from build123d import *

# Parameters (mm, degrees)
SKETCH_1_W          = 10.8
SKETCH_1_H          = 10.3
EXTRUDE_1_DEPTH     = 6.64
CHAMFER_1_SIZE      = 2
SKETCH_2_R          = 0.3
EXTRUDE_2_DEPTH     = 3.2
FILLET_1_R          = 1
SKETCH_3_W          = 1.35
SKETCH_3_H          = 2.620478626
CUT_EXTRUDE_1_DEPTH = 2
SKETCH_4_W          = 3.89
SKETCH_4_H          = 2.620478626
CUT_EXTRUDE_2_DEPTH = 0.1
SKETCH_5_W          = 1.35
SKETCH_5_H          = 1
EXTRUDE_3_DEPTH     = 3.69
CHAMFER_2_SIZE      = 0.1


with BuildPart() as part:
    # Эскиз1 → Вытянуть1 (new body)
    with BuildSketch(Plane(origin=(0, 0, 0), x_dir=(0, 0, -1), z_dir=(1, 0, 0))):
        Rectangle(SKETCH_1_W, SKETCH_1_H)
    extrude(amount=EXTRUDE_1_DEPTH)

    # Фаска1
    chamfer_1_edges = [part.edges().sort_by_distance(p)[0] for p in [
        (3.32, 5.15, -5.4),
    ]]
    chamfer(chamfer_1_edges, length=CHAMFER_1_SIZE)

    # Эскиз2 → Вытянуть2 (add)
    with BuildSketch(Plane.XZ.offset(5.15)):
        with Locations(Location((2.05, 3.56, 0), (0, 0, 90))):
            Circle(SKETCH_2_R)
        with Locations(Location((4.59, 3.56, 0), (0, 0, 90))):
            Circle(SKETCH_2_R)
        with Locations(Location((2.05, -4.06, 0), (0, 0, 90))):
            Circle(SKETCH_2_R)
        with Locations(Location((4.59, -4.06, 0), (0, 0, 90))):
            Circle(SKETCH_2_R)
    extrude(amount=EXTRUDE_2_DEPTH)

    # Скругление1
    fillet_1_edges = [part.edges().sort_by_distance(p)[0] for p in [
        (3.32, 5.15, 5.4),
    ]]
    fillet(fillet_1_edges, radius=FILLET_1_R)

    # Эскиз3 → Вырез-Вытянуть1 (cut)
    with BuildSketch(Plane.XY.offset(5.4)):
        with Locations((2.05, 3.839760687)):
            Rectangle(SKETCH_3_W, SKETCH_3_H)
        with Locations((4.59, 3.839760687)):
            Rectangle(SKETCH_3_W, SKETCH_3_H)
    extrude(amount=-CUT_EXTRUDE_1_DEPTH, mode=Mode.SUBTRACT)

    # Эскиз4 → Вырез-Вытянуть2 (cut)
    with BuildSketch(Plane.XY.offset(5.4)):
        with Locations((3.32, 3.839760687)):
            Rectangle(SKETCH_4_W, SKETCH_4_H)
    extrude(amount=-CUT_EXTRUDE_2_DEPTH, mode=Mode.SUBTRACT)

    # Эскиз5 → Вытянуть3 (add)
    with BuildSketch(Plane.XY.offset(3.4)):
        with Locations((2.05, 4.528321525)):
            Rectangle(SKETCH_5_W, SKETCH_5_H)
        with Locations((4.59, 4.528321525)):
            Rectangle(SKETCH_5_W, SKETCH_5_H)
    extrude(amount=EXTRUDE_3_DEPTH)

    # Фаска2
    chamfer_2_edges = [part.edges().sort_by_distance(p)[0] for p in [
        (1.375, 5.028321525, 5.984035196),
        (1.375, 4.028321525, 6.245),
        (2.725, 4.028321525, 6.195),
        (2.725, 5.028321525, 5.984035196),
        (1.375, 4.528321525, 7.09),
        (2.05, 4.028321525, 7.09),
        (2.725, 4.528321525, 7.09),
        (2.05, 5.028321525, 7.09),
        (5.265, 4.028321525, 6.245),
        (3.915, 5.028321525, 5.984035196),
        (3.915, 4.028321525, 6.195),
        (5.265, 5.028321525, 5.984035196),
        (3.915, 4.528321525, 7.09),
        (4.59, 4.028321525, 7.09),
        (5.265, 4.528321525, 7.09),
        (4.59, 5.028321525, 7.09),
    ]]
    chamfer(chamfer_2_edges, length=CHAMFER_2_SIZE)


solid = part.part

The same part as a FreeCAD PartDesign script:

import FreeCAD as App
import Part
import Sketcher


def edges_at(feature, points):
    """Names of the edges that pass closest to the given points."""
    edges = feature.Shape.Edges
    near = lambda p: min(range(len(edges)), key=lambda i: edges[i].distToShape(Part.Vertex(*p))[0])
    return sorted({f"Edge{near(p) + 1}" for p in points})


def add_polygon(sketch, points):
    """Adds a closed chain of lines whose ends are joined by coincident constraints."""
    first, n = sketch.GeometryCount, len(points)
    for a, b in zip(points, points[1:] + points[:1]):
        sketch.addGeometry(Part.LineSegment(App.Vector(*a, 0), App.Vector(*b, 0)), False)
    for i in range(n):
        sketch.addConstraint(Sketcher.Constraint("Coincident", first + i, 2, first + (i + 1) % n, 1))

doc = App.newDocument("Part")
body = doc.addObject("PartDesign::Body", "Body")

# Sketch on YZ plane
sketch1 = body.newObject("Sketcher::SketchObject", "Sketch")
sketch1.AttachmentSupport = (doc.getObject("YZ_Plane"), [""])
sketch1.MapMode = "FlatFace"
add_polygon(sketch1, [(5, 5), (-5, 5), (-5, -5), (5, -5)])  # lines 0-3
sketch1.addConstraint([
    Sketcher.Constraint("Horizontal", 0),
    Sketcher.Constraint("Vertical", 1),
    Sketcher.Constraint("Horizontal", 2),
    Sketcher.Constraint("Vertical", 3),
    Sketcher.Constraint("Symmetric", 0, 2, 2, 2, -1, 1),
    Sketcher.Constraint("DistanceX", 0, 2, 0, 1, 10.3),
    Sketcher.Constraint("DistanceY", 1, 2, 1, 1, 10.8),
])
pad1 = body.newObject("PartDesign::Pad", "Pad")
pad1.Profile = sketch1
pad1.Length = 6.64
doc.recompute()

chamfer = body.newObject("PartDesign::Chamfer", "Chamfer")
chamfer.Base = (pad1, edges_at(pad1, [(3.32, 5.15, -5.4)]))
chamfer.Size = 2

# Sketch on XZ plane
sketch2 = body.newObject("Sketcher::SketchObject", "Sketch001")
sketch2.AttachmentSupport = (doc.getObject("XZ_Plane"), [""])
sketch2.MapMode = "FlatFace"
sketch2.AttachmentOffset = App.Placement(App.Vector(0, 0, 5.15), App.Rotation())
sketch2.addGeometry([
    Part.Circle(App.Vector(2.05, 3.56, 0), App.Vector(0, 0, 1), 0.3),
    Part.Circle(App.Vector(4.59, 3.56, 0), App.Vector(0, 0, 1), 0.3),
    Part.Circle(App.Vector(2.05, -4.06, 0), App.Vector(0, 0, 1), 0.3),
    Part.Circle(App.Vector(4.59, -4.06, 0), App.Vector(0, 0, 1), 0.3),
], False)
sketch2.addConstraint([
    Sketcher.Constraint("Equal", 0, 1),
    Sketcher.Constraint("Equal", 1, 2),
    Sketcher.Constraint("Equal", 2, 3),
    Sketcher.Constraint("Horizontal", 0, 3, 1, 3),
    Sketcher.Constraint("Horizontal", 2, 3, 3, 3),
    Sketcher.Constraint("Vertical", 0, 3, 2, 3),
    Sketcher.Constraint("Vertical", 1, 3, 3, 3),
    Sketcher.Constraint("Diameter", 0, 0.6),
    Sketcher.Constraint("DistanceX", -1, 1, 0, 3, 2.05),
    Sketcher.Constraint("DistanceY", -1, 1, 0, 3, 3.56),
    Sketcher.Constraint("DistanceX", -1, 1, 1, 3, 4.59),
    Sketcher.Constraint("DistanceY", 2, 3, -1, 1, 4.06),
])
pad2 = body.newObject("PartDesign::Pad", "Pad001")
pad2.Profile = sketch2
pad2.Length = 3.2
doc.recompute()

fillet = body.newObject("PartDesign::Fillet", "Fillet")
fillet.Base = (pad2, edges_at(pad2, [(3.32, 5.15, 5.4)]))
fillet.Radius = 1

# Sketch on XY plane
sketch3 = body.newObject("Sketcher::SketchObject", "Sketch002")
sketch3.AttachmentSupport = (doc.getObject("XY_Plane"), [""])
sketch3.MapMode = "FlatFace"
sketch3.AttachmentOffset = App.Placement(App.Vector(0, 0, 5.4), App.Rotation())
add_polygon(sketch3, [(1.4, 5.2), (1.4, 2.5), (2.7, 2.5), (2.7, 5.2)])  # lines 0-3
add_polygon(sketch3, [(3.9, 5.2), (3.9, 2.5), (5.3, 2.5), (5.3, 5.2)])  # lines 4-7
sketch3.addConstraint([
    Sketcher.Constraint("Vertical", 0),
    Sketcher.Constraint("Horizontal", 1),
    Sketcher.Constraint("Vertical", 2),
    Sketcher.Constraint("Horizontal", 3),
    Sketcher.Constraint("Vertical", 4),
    Sketcher.Constraint("Horizontal", 5),
    Sketcher.Constraint("Vertical", 6),
    Sketcher.Constraint("Horizontal", 7),
    Sketcher.Constraint("Horizontal", 1, 2, 4, 2),
    Sketcher.Constraint("Horizontal", 3, 2, 6, 2),
    Sketcher.Constraint("Equal", 3, 5),
    Sketcher.Constraint("DistanceX", 1, 1, 1, 2, 1.35),
    Sketcher.Constraint("DistanceY", -1, 1, 2, 2, 5.15),
    Sketcher.Constraint("DistanceX", 1, 2, 4, 2, 1.19),
    Sketcher.Constraint("DistanceX", -1, 1, 0, 2, 1.375),
    Sketcher.Constraint("DistanceY", 0, 2, 0, 1, 2.620479),
])
pocket1 = body.newObject("PartDesign::Pocket", "Pocket")
pocket1.Profile = sketch3
pocket1.Length = 2

# Sketch on XY plane
sketch4 = body.newObject("Sketcher::SketchObject", "Sketch003")
sketch4.AttachmentSupport = (doc.getObject("XY_Plane"), [""])
sketch4.MapMode = "FlatFace"
sketch4.AttachmentOffset = App.Placement(App.Vector(0, 0, 5.4), App.Rotation())
add_polygon(sketch4, [(1.4, 5.2), (1.4, 2.5), (5.3, 2.5), (5.3, 5.2)])  # lines 0-3
sketch4.addConstraint([
    Sketcher.Constraint("Vertical", 0),
    Sketcher.Constraint("Horizontal", 1),
    Sketcher.Constraint("Vertical", 2),
    Sketcher.Constraint("Horizontal", 3),
    Sketcher.Constraint("DistanceX", 1, 1, 1, 2, 3.89),
    Sketcher.Constraint("DistanceY", -1, 1, 2, 2, 5.15),
    Sketcher.Constraint("DistanceX", -1, 1, 0, 2, 1.375),
    Sketcher.Constraint("DistanceY", 0, 2, 0, 1, 2.620479),
])
pocket2 = body.newObject("PartDesign::Pocket", "Pocket001")
pocket2.Profile = sketch4
pocket2.Length = 0.1

# Sketch on XY plane
sketch5 = body.newObject("Sketcher::SketchObject", "Sketch004")
sketch5.AttachmentSupport = (doc.getObject("XY_Plane"), [""])
sketch5.MapMode = "FlatFace"
sketch5.AttachmentOffset = App.Placement(App.Vector(0, 0, 3.4), App.Rotation())
add_polygon(sketch5, [(1.4, 5), (1.4, 4), (2.7, 4), (2.7, 5)])  # lines 0-3
add_polygon(sketch5, [(3.9, 5), (3.9, 4), (5.3, 4), (5.3, 5)])  # lines 4-7
sketch5.addConstraint([
    Sketcher.Constraint("Vertical", 0),
    Sketcher.Constraint("Horizontal", 1),
    Sketcher.Constraint("Vertical", 2),
    Sketcher.Constraint("Horizontal", 3),
    Sketcher.Constraint("Vertical", 4),
    Sketcher.Constraint("Horizontal", 5),
    Sketcher.Constraint("Vertical", 6),
    Sketcher.Constraint("Horizontal", 7),
    Sketcher.Constraint("Horizontal", 1, 2, 4, 2),
    Sketcher.Constraint("Horizontal", 3, 2, 6, 2),
    Sketcher.Constraint("Equal", 3, 5),
    Sketcher.Constraint("DistanceY", 0, 2, 0, 1, 1.0),
    Sketcher.Constraint("DistanceX", 1, 1, 1, 2, 1.35),
    Sketcher.Constraint("DistanceX", 1, 2, 4, 2, 1.19),
    Sketcher.Constraint("DistanceX", -1, 1, 0, 2, 1.375),
    Sketcher.Constraint("DistanceY", -1, 1, 0, 2, 4.028322),
])
pad3 = body.newObject("PartDesign::Pad", "Pad002")
pad3.Profile = sketch5
pad3.Length = 3.69
doc.recompute()

chamfer2 = body.newObject("PartDesign::Chamfer", "Chamfer001")
chamfer2.Base = (pad3, edges_at(pad3, [
    (1.375, 5.028, 5.984),
    (1.375, 4.028, 6.245),
    (2.725, 4.028, 6.195),
    (2.725, 5.028, 5.984),
    (1.375, 4.528, 7.09),
    (2.05, 4.028, 7.09),
    (2.725, 4.528, 7.09),
    (2.05, 5.028, 7.09),
    (5.265, 4.028, 6.245),
    (3.915, 5.028, 5.984),
    (3.915, 4.028, 6.195),
    (5.265, 5.028, 5.984),
    (3.915, 4.528, 7.09),
    (4.59, 4.028, 7.09),
    (5.265, 4.528, 7.09),
    (4.59, 5.028, 7.09),
]))
chamfer2.Size = 0.1

doc.recompute()
